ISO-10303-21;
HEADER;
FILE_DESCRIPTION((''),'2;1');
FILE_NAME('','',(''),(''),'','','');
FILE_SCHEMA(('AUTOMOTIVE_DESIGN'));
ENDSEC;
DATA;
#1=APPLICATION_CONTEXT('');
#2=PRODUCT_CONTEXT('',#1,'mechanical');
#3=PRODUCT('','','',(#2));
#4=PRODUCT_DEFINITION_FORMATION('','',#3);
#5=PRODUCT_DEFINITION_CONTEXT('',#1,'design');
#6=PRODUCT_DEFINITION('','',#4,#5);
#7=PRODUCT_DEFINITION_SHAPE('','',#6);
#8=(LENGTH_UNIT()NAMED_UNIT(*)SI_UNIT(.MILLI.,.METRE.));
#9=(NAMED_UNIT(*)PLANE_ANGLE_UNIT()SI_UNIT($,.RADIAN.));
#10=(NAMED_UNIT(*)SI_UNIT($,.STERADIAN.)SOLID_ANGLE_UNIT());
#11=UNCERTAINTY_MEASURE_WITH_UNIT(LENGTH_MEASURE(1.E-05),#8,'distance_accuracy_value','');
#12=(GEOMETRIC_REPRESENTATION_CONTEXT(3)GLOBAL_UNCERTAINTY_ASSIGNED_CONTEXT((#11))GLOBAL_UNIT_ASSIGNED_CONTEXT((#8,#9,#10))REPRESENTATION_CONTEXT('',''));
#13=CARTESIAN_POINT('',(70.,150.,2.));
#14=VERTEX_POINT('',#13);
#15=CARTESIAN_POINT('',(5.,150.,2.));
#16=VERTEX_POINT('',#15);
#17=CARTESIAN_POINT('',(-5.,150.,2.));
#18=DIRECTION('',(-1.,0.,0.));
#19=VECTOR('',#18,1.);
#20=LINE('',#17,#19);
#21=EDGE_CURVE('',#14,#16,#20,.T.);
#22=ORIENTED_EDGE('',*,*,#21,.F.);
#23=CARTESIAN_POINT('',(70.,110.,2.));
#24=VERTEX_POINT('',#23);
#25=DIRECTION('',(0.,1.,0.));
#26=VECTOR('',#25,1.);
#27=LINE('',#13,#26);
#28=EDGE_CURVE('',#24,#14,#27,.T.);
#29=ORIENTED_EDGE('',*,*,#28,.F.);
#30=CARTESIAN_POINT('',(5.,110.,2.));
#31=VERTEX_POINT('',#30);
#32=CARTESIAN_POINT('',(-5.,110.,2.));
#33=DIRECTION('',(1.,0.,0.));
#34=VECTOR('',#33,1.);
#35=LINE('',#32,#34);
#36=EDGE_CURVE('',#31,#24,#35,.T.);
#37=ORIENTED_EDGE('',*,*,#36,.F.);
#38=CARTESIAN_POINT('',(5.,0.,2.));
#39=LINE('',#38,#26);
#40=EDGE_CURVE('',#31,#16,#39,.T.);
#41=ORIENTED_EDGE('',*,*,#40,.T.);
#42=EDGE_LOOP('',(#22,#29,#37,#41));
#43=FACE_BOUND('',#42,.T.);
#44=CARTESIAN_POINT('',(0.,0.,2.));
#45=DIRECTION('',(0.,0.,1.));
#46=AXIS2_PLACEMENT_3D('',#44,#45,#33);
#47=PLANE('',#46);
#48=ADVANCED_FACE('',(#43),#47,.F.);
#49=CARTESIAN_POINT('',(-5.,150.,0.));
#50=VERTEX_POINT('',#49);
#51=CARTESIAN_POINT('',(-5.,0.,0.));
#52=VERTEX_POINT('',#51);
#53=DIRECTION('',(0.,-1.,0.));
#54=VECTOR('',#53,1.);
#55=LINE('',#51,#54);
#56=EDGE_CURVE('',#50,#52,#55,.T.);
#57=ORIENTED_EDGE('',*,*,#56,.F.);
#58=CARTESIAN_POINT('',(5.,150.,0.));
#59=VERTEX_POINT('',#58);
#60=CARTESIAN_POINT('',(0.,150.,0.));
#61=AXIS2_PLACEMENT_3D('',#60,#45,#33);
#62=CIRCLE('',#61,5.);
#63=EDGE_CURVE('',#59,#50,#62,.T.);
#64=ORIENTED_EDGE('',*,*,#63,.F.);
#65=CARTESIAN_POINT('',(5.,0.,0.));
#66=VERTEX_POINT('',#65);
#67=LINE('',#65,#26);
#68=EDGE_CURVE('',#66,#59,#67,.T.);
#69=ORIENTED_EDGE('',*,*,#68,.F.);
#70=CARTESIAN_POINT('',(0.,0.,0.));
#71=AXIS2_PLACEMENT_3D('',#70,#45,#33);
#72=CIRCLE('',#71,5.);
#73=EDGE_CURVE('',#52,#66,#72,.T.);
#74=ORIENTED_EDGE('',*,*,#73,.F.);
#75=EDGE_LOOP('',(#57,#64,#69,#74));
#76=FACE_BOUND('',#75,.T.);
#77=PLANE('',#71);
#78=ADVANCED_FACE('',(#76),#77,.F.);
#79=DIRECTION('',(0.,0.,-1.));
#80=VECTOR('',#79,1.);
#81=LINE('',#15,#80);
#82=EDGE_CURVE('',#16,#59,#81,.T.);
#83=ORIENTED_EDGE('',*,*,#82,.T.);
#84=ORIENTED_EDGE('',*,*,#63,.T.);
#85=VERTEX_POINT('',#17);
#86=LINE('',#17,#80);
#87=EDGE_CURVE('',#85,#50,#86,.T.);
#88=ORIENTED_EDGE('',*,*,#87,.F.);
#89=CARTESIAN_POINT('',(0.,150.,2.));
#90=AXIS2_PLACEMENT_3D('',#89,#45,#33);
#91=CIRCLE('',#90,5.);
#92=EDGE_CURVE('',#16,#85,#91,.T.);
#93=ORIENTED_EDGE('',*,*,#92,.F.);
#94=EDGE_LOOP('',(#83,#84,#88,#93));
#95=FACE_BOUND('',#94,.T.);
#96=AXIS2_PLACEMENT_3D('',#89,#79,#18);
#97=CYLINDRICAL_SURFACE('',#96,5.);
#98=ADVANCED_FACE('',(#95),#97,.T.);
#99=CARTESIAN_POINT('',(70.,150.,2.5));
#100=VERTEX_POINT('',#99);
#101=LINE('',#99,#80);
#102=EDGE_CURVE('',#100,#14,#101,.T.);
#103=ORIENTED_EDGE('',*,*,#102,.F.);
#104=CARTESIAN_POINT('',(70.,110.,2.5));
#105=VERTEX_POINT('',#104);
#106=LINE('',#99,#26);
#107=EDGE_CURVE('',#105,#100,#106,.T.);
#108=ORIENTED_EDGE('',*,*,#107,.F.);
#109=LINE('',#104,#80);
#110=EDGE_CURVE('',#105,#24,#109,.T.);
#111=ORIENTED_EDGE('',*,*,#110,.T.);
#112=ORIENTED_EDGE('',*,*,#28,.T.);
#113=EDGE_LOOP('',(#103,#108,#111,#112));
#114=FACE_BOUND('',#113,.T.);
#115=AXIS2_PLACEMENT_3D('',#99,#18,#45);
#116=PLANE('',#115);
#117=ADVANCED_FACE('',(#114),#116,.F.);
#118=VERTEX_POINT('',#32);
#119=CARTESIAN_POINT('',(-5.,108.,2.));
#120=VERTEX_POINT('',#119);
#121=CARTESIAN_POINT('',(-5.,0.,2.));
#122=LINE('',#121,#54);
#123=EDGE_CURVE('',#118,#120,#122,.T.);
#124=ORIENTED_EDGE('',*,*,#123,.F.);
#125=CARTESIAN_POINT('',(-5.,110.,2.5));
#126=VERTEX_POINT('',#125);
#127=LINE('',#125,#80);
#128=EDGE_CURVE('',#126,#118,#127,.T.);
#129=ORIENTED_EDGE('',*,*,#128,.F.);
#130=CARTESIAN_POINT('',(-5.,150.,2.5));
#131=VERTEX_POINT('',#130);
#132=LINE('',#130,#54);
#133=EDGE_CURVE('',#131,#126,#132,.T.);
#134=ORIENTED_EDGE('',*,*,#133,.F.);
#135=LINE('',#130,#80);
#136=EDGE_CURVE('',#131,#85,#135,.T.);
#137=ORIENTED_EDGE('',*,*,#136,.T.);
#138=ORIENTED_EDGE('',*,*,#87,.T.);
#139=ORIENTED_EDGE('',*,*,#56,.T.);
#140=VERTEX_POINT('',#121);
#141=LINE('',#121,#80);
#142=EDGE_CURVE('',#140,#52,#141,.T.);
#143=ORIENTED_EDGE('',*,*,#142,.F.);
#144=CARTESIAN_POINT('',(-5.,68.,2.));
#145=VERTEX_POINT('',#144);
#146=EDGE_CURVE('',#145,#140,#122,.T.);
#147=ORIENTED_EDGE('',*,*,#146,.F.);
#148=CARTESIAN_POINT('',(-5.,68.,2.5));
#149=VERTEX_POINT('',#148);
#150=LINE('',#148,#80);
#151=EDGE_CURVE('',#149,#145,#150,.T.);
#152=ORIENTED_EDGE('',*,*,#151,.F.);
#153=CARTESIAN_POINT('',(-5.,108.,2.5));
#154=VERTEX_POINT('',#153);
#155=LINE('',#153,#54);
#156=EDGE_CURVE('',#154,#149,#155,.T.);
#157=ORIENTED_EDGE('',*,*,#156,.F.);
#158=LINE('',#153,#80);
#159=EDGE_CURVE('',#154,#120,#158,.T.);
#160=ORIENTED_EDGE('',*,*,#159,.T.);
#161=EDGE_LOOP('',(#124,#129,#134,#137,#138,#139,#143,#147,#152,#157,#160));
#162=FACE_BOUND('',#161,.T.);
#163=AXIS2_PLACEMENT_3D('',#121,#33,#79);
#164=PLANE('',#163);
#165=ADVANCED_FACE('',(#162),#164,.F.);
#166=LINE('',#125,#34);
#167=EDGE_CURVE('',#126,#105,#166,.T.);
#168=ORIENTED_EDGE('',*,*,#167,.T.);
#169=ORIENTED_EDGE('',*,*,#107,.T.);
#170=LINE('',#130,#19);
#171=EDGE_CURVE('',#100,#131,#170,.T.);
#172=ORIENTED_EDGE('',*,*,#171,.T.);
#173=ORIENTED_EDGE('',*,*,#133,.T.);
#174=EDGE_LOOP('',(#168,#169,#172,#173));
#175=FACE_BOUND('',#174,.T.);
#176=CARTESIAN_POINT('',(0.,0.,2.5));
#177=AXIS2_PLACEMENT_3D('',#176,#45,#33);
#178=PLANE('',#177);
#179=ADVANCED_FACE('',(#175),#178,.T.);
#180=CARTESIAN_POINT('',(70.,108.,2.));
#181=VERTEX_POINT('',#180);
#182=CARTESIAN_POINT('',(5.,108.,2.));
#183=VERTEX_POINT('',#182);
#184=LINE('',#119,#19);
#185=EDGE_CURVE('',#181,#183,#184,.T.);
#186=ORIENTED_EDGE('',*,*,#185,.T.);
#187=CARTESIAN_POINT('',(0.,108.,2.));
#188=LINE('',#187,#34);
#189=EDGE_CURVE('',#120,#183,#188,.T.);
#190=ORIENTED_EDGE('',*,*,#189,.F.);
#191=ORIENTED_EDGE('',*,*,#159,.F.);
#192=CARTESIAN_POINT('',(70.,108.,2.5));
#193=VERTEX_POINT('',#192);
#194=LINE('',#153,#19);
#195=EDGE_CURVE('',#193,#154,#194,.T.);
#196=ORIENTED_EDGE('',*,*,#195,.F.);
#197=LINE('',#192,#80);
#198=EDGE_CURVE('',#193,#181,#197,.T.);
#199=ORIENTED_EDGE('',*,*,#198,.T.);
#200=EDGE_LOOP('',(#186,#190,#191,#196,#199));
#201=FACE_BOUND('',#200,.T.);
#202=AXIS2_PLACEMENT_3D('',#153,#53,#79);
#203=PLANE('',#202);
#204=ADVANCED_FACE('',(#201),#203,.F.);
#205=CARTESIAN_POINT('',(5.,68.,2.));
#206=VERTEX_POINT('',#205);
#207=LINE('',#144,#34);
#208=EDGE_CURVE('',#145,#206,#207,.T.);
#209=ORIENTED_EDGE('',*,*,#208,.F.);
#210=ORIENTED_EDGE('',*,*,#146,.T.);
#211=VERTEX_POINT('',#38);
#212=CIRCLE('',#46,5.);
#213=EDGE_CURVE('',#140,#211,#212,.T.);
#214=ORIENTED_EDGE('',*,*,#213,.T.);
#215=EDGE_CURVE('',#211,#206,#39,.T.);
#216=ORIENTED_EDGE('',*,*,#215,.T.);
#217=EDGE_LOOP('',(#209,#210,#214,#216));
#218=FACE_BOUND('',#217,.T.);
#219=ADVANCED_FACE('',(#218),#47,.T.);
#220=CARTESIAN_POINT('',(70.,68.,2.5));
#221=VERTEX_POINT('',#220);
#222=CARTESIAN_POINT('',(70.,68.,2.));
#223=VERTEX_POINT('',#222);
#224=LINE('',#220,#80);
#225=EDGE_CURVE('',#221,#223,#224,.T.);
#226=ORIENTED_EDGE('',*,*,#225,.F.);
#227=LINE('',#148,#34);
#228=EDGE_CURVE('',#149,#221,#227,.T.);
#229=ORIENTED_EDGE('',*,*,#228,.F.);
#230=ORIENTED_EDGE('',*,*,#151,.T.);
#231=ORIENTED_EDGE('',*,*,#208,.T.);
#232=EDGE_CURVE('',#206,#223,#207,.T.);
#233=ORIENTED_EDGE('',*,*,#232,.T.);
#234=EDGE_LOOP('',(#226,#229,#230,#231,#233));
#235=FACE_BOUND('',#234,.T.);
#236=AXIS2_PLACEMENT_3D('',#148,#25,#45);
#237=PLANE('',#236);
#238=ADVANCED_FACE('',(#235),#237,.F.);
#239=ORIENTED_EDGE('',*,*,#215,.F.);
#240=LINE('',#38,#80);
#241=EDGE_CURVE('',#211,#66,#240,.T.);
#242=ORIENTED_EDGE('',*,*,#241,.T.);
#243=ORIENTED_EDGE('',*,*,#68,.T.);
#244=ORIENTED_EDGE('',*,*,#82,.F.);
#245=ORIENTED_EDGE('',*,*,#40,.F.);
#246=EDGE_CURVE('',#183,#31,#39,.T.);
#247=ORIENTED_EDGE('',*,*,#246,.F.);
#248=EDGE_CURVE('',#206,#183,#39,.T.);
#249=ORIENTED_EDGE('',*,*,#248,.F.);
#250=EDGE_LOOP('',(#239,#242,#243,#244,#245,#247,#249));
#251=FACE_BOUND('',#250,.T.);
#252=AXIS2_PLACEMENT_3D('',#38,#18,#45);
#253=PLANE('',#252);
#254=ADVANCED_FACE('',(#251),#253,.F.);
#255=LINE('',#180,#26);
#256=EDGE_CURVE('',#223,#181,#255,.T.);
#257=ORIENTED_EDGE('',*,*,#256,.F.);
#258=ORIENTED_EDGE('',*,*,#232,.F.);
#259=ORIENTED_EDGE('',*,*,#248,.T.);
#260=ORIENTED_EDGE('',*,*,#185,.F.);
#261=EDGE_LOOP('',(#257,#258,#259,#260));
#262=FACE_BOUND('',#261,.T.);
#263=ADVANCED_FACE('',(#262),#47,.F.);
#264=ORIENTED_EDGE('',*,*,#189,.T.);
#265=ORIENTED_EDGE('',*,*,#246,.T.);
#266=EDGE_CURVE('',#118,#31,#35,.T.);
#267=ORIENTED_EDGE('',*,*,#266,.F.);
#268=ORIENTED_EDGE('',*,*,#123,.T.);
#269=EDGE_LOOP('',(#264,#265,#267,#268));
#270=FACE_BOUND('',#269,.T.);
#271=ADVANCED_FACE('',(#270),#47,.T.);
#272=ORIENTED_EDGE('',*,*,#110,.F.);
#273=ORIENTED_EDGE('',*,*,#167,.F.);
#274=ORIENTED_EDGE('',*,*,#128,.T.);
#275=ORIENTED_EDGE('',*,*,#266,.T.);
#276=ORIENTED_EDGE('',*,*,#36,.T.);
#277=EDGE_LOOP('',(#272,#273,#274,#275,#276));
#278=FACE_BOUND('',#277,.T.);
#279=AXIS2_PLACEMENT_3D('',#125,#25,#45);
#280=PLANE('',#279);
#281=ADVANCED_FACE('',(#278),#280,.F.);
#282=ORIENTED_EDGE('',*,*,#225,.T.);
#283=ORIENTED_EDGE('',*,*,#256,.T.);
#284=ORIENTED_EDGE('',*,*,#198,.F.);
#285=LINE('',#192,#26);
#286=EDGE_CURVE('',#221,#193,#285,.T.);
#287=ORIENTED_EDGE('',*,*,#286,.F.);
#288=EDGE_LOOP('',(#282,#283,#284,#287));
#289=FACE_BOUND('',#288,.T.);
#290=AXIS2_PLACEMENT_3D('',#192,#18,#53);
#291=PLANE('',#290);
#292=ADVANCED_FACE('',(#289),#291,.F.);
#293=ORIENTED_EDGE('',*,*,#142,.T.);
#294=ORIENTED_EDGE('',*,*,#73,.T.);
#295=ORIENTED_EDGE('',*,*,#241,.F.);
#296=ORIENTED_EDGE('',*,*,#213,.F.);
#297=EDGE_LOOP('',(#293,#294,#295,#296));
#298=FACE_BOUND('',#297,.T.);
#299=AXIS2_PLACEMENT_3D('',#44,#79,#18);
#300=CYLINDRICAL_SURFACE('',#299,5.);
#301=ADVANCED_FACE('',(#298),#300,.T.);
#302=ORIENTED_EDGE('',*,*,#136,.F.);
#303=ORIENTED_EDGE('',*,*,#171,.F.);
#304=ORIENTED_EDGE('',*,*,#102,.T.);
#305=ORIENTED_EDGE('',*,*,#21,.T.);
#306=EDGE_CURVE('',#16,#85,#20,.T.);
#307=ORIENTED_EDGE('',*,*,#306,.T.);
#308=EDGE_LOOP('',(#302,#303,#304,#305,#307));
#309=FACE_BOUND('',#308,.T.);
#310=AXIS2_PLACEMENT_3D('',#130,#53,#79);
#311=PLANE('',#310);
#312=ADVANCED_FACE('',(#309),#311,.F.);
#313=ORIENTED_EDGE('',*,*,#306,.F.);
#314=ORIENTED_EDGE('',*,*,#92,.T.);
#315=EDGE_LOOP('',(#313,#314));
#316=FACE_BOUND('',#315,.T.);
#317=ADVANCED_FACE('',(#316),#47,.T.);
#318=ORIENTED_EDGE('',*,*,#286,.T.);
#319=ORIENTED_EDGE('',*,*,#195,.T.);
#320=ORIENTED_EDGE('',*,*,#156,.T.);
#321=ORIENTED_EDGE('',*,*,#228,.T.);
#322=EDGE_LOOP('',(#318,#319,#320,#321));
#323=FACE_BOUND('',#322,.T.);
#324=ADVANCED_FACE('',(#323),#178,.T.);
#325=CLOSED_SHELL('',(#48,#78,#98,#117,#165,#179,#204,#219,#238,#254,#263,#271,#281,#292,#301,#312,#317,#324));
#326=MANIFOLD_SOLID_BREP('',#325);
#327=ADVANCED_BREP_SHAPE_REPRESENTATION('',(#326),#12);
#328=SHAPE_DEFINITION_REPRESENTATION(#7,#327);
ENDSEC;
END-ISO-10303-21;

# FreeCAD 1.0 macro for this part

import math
import FreeCAD as App
import Part
import Sketcher

V = App.Vector

doc = App.newDocument("Part")
params = doc.addObject("Spreadsheet::Sheet", "Params")
for row, (alias, value) in enumerate([
    ("sketch1_radius", "5 mm"),
    ("sketch1_height", "150 mm"),
    ("pad1_length", "2 mm"),
    ("sketch2_width", "75 mm"),
    ("sketch2_height", "40 mm"),
    ("pad2_length", "0.5 mm"),
], start=1):
    params.set(f"A{row}", alias)
    params.set(f"B{row}", "=" + value)
    params.setAlias(f"B{row}", alias)

body = doc.addObject("PartDesign::Body", "Body")

# Sketch on XY plane
sketch1 = body.newObject("Sketcher::SketchObject", "Sketch")
sketch1.AttachmentSupport = (doc.getObject("XY_Plane"), [""])
sketch1.MapMode = "FlatFace"
sketch1.addGeometry([
    Part.LineSegment(V(-5, 150, 0), V(-5, 0, 0)),
    Part.ArcOfCircle(Part.Circle(V(0, 0, 0), V(0, 0, 1), 5), math.radians(180), math.radians(360)),
    Part.LineSegment(V(5, 0, 0), V(5, 150, 0)),
    Part.ArcOfCircle(Part.Circle(V(0, 150, 0), V(0, 0, 1), 5), math.radians(0), math.radians(180)),
], False)
sketch1.addConstraint([
    Sketcher.Constraint("Tangent", 0, 2, 1, 1),
    Sketcher.Constraint("Tangent", 1, 2, 2, 1),
    Sketcher.Constraint("Tangent", 2, 2, 3, 1),
    Sketcher.Constraint("Tangent", 3, 2, 0, 1),
    Sketcher.Constraint("Vertical", 0),
    Sketcher.Constraint("Vertical", 2),
    Sketcher.Constraint("Coincident", 1, 3, -1, 1),
    Sketcher.Constraint("Radius", 1, 5.0),
    Sketcher.Constraint("DistanceY", 0, 2, 0, 1, 150.0),
])
sketch1.setExpression("Constraints[7]", "Params.sketch1_radius")
sketch1.setExpression("Constraints[8]", "Params.sketch1_height")
pad1 = body.newObject("PartDesign::Pad", "Pad")
pad1.Profile = sketch1
pad1.setExpression("Length", "Params.pad1_length")

# Sketch on XY plane
sketch2 = body.newObject("Sketcher::SketchObject", "Sketch001")
sketch2.AttachmentSupport = (doc.getObject("XY_Plane"), [""])
sketch2.MapMode = "FlatFace"
sketch2.AttachmentOffset = App.Placement(V(0, 0, 2), App.Rotation())
sketch2.addGeometry([
    Part.LineSegment(V(-5, 150, 0), V(-5, 110, 0)),  # 0
    Part.LineSegment(V(-5, 110, 0), V(70, 110, 0)),  # 1
    Part.LineSegment(V(70, 110, 0), V(70, 150, 0)),  # 2
    Part.LineSegment(V(70, 150, 0), V(-5, 150, 0)),  # 3
    Part.LineSegment(V(-5, 108, 0), V(-5, 68, 0)),  # 4
    Part.LineSegment(V(-5, 68, 0), V(70, 68, 0)),  # 5
    Part.LineSegment(V(70, 68, 0), V(70, 108, 0)),  # 6
    Part.LineSegment(V(70, 108, 0), V(-5, 108, 0)),  # 7
], False)
sketch2.addConstraint([
    Sketcher.Constraint("Coincident", 0, 2, 1, 1),
    Sketcher.Constraint("Coincident", 1, 2, 2, 1),
    Sketcher.Constraint("Coincident", 2, 2, 3, 1),
    Sketcher.Constraint("Coincident", 3, 2, 0, 1),
    Sketcher.Constraint("Coincident", 4, 2, 5, 1),
    Sketcher.Constraint("Coincident", 5, 2, 6, 1),
    Sketcher.Constraint("Coincident", 6, 2, 7, 1),
    Sketcher.Constraint("Coincident", 7, 2, 4, 1),
    Sketcher.Constraint("Vertical", 0),
    Sketcher.Constraint("Horizontal", 1),
    Sketcher.Constraint("Vertical", 2),
    Sketcher.Constraint("Horizontal", 3),
    Sketcher.Constraint("Vertical", 4),
    Sketcher.Constraint("Horizontal", 5),
    Sketcher.Constraint("Vertical", 6),
    Sketcher.Constraint("Horizontal", 7),
    Sketcher.Constraint("Vertical", 3, 2, 4, 2),
    Sketcher.Constraint("Vertical", 2, 2, 5, 2),
    Sketcher.Constraint("Equal", 2, 4),
    Sketcher.Constraint("DistanceX", 1, 1, 1, 2, 75.0),
    Sketcher.Constraint("DistanceY", 0, 2, 0, 1, 40.0),
    Sketcher.Constraint("DistanceX", 0, 2, -1, 1, 5.0),
    Sketcher.Constraint("DistanceY", -1, 1, 0, 2, 110.0),
    Sketcher.Constraint("DistanceY", -1, 1, 4, 2, 68.0),
])
sketch2.setExpression("Constraints[19]", "Params.sketch2_width")
sketch2.setExpression("Constraints[20]", "Params.sketch2_height")
pad2 = body.newObject("PartDesign::Pad", "Pad001")
pad2.Profile = sketch2
pad2.setExpression("Length", "Params.pad2_length")

doc.recompute()
